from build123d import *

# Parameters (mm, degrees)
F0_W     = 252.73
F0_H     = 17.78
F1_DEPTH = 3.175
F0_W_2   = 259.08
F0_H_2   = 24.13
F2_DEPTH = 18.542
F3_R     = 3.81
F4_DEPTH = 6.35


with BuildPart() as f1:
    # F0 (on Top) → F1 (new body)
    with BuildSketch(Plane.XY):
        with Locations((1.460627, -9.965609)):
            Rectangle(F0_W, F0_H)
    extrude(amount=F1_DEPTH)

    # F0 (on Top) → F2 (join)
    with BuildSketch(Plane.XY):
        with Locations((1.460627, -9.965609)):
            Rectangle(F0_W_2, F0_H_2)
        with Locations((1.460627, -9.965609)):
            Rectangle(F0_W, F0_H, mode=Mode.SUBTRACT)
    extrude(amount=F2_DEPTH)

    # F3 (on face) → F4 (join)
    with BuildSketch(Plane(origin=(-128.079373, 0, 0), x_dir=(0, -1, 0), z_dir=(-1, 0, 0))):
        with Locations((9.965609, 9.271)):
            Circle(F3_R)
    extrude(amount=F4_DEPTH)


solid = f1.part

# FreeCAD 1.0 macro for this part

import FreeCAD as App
import Part
import Sketcher

V = App.Vector
Q = App.Units.Quantity

doc = App.newDocument("Part")
body = doc.addObject("PartDesign::Body", "Body")

# Sketch on XY plane
sketch1 = body.newObject("Sketcher::SketchObject", "Sketch")
sketch1.AttachmentSupport = (doc.getObject("XY_Plane"), [""])
sketch1.MapMode = "FlatFace"
sketch1.addGeometry([
    Part.LineSegment(V(-124.904373, -1.075609, 0), V(-124.904373, -18.855609, 0)),
    Part.LineSegment(V(-124.904373, -18.855609, 0), V(127.825627, -18.855609, 0)),
    Part.LineSegment(V(127.825627, -18.855609, 0), V(127.825627, -1.075609, 0)),
    Part.LineSegment(V(127.825627, -1.075609, 0), V(-124.904373, -1.075609, 0)),
], False)
sketch1.addConstraint([
    Sketcher.Constraint("Coincident", 0, 2, 1, 1),
    Sketcher.Constraint("Coincident", 1, 2, 2, 1),
    Sketcher.Constraint("Coincident", 2, 2, 3, 1),
    Sketcher.Constraint("Coincident", 3, 2, 0, 1),
    Sketcher.Constraint("Vertical", 0),
    Sketcher.Constraint("Horizontal", 1),
    Sketcher.Constraint("Vertical", 2),
    Sketcher.Constraint("Horizontal", 3),
    Sketcher.Constraint("DistanceY", 0, 2, 0, 1, Q("0.7 in")),
    Sketcher.Constraint("DistanceX", 1, 1, 1, 2, Q("9.95 in")),
    Sketcher.Constraint("DistanceY", 0, 2, -1, 1, 18.855609),
    Sketcher.Constraint("DistanceX", 0, 2, -1, 1, 124.904373),
])
pad1 = body.newObject("PartDesign::Pad", "Pad")
pad1.Profile = sketch1
pad1.Length = Q("0.125 in")

# Sketch on XY plane
sketch2 = body.newObject("Sketcher::SketchObject", "Sketch001")
sketch2.AttachmentSupport = (doc.getObject("XY_Plane"), [""])
sketch2.MapMode = "FlatFace"
sketch2.addGeometry([
    Part.LineSegment(V(-128.079373, 2.099391, 0), V(-128.079373, -22.030609, 0)),  # 0
    Part.LineSegment(V(-128.079373, -22.030609, 0), V(131.000627, -22.030609, 0)),  # 1
    Part.LineSegment(V(131.000627, -22.030609, 0), V(131.000627, 2.099391, 0)),  # 2
    Part.LineSegment(V(131.000627, 2.099391, 0), V(-128.079373, 2.099391, 0)),  # 3
    Part.LineSegment(V(127.825627, -18.855609, 0), V(-124.904373, -18.855609, 0)),  # 4
    Part.LineSegment(V(-124.904373, -18.855609, 0), V(-124.904373, -1.075609, 0)),  # 5
    Part.LineSegment(V(-124.904373, -1.075609, 0), V(127.825627, -1.075609, 0)),  # 6
    Part.LineSegment(V(127.825627, -1.075609, 0), V(127.825627, -18.855609, 0)),  # 7
], False)
sketch2.addConstraint([
    Sketcher.Constraint("Coincident", 0, 2, 1, 1),
    Sketcher.Constraint("Coincident", 1, 2, 2, 1),
    Sketcher.Constraint("Coincident", 2, 2, 3, 1),
    Sketcher.Constraint("Coincident", 3, 2, 0, 1),
    Sketcher.Constraint("Coincident", 4, 2, 5, 1),
    Sketcher.Constraint("Coincident", 5, 2, 6, 1),
    Sketcher.Constraint("Coincident", 6, 2, 7, 1),
    Sketcher.Constraint("Coincident", 7, 2, 4, 1),
    Sketcher.Constraint("Vertical", 0),
    Sketcher.Constraint("Horizontal", 1),
    Sketcher.Constraint("Vertical", 2),
    Sketcher.Constraint("Horizontal", 3),
    Sketcher.Constraint("Horizontal", 4),
    Sketcher.Constraint("Vertical", 5),
    Sketcher.Constraint("Horizontal", 6),
    Sketcher.Constraint("Vertical", 7),
    Sketcher.Constraint("DistanceX", 1, 1, 1, 2, Q("10.2 in")),
    Sketcher.Constraint("DistanceY", 5, 1, 5, 2, Q("0.7 in")),
    Sketcher.Constraint("DistanceX", 4, 2, 4, 1, Q("9.95 in")),
    Sketcher.Constraint("DistanceY", 0, 2, 0, 1, Q("0.95 in")),
    Sketcher.Constraint("DistanceX", 0, 2, 4, 2, Q("0.125 in")),
    Sketcher.Constraint("DistanceY", 0, 2, 4, 2, Q("0.125 in")),
    Sketcher.Constraint("DistanceY", 0, 2, -1, 1, 22.030609),
    Sketcher.Constraint("DistanceX", 0, 2, -1, 1, 128.079373),
])
pad2 = body.newObject("PartDesign::Pad", "Pad001")
pad2.Profile = sketch2
pad2.Length = Q("0.73 in")

# Sketch on YZ plane
sketch3 = body.newObject("Sketcher::SketchObject", "Sketch002")
sketch3.AttachmentSupport = (doc.getObject("YZ_Plane"), [""])
sketch3.MapMode = "FlatFace"
sketch3.AttachmentOffset = App.Placement(V(0, 0, -128.079373), App.Rotation())
sketch3.addGeometry(Part.Circle(V(-9.965609, 9.271, 0), V(0, 0, 1), 3.81), False)
sketch3.addConstraint([
    Sketcher.Constraint("Diameter", 0, Q("0.3 in")),
    Sketcher.Constraint("DistanceY", -1, 1, 0, 3, Q("0.365 in")),
    Sketcher.Constraint("DistanceX", 0, 3, -1, 1, 9.965609),
])
pad3 = body.newObject("PartDesign::Pad", "Pad002")
pad3.Profile = sketch3
pad3.Length = Q("0.25 in")
pad3.Reversed = True

doc.recompute()
